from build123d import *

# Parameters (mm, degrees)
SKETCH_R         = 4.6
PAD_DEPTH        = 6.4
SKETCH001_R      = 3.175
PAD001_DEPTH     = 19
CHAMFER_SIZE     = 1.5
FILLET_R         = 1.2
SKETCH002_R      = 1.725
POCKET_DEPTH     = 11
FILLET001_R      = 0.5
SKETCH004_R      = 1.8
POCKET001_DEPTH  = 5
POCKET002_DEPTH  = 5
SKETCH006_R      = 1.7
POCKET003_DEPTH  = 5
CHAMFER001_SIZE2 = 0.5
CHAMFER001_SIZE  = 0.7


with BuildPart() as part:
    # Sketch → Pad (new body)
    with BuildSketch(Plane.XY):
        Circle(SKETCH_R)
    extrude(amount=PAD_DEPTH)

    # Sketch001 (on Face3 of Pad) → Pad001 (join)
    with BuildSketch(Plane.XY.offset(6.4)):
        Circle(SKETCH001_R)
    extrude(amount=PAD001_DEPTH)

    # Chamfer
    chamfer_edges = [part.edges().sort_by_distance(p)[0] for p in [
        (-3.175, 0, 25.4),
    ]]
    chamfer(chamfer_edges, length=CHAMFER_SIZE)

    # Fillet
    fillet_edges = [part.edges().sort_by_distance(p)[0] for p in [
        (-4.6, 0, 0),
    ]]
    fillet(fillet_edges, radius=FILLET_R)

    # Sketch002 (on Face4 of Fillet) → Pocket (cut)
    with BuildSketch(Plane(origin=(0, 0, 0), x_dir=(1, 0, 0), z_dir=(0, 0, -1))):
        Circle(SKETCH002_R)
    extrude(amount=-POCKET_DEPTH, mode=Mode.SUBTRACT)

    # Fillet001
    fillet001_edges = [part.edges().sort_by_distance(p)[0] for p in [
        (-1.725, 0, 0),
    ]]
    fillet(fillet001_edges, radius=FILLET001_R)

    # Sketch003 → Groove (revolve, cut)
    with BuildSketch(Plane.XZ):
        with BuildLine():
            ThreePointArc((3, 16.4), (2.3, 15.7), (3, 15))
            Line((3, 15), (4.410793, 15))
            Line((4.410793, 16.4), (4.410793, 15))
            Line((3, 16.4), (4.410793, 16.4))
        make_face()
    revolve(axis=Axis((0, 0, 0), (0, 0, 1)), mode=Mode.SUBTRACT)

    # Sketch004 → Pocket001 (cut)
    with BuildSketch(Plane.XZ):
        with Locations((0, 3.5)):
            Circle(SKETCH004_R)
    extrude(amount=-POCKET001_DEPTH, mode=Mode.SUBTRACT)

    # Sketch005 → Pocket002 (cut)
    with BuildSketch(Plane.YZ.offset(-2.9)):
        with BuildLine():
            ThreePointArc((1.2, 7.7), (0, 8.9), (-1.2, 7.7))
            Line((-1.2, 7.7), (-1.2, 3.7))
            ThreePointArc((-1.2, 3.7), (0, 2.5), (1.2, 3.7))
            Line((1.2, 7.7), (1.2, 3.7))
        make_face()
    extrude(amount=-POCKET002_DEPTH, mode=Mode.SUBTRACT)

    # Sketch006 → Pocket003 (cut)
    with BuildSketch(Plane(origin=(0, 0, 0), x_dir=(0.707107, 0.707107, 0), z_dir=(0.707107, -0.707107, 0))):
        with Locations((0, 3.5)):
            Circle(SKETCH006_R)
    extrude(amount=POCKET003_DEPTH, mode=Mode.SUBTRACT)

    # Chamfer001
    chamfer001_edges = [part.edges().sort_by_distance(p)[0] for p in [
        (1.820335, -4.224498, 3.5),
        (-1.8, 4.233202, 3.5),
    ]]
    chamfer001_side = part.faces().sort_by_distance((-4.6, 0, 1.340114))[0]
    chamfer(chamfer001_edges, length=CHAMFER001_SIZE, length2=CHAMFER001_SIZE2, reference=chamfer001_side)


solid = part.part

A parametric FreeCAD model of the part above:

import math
import FreeCAD as App
import Part
import Sketcher

V = App.Vector
Q = App.Units.Quantity


def edges_at(feature, points):
    """Names of the edges that pass closest to the given points."""
    edges = feature.Shape.Edges
    near = lambda p: min(range(len(edges)), key=lambda i: edges[i].distToShape(Part.Vertex(*p))[0])
    return sorted({f"Edge{near(p) + 1}" for p in points})

doc = App.newDocument("Part")
body = doc.addObject("PartDesign::Body", "Body")

# Sketch on XY plane
sketch1 = body.newObject("Sketcher::SketchObject", "Sketch")
sketch1.AttachmentSupport = (doc.getObject("XY_Plane"), [""])
sketch1.MapMode = "FlatFace"
sketch1.addGeometry(Part.Circle(V(0, 0, 0), V(0, 0, 1), 4.6), False)
sketch1.addConstraint(Sketcher.Constraint("Coincident", 0, 3, -1, 1))
sketch1.addConstraint(Sketcher.Constraint("Diameter", 0, Q("9.2 mm")))
pad1 = body.newObject("PartDesign::Pad", "Pad")
pad1.Profile = sketch1
pad1.Length = 6.4

# Sketch on XY plane
sketch2 = body.newObject("Sketcher::SketchObject", "Sketch001")
sketch2.AttachmentSupport = (doc.getObject("XY_Plane"), [""])
sketch2.MapMode = "FlatFace"
sketch2.AttachmentOffset = App.Placement(V(0, 0, 6.4), App.Rotation())
sketch2.addGeometry(Part.Circle(V(0, 0, 0), V(0, 0, 1), 3.175), False)
sketch2.addConstraint(Sketcher.Constraint("Coincident", 0, 3, -1, 1))
sketch2.addConstraint(Sketcher.Constraint("Diameter", 0, Q("6.35 mm")))
pad2 = body.newObject("PartDesign::Pad", "Pad001")
pad2.Profile = sketch2
pad2.Length = 19
doc.recompute()

chamfer = body.newObject("PartDesign::Chamfer", "Chamfer")
chamfer.Base = (pad2, edges_at(pad2, [(-3.175, 0, 25.4)]))
chamfer.Size = 1.5
doc.recompute()

fillet = body.newObject("PartDesign::Fillet", "Fillet")
fillet.Base = (chamfer, edges_at(chamfer, [(-4.6, 0, 0)]))
fillet.Radius = 1.2

# Sketch on XY plane
sketch3 = body.newObject("Sketcher::SketchObject", "Sketch002")
sketch3.AttachmentSupport = (doc.getObject("XY_Plane"), [""])
sketch3.MapMode = "FlatFace"
sketch3.addGeometry(Part.Circle(V(0, 0, 0), V(0, 0, 1), 1.725), False)
sketch3.addConstraint(Sketcher.Constraint("Coincident", 0, 3, -1, 1))
sketch3.addConstraint(Sketcher.Constraint("Diameter", 0, Q("3.45 mm")))
pocket1 = body.newObject("PartDesign::Pocket", "Pocket")
pocket1.Profile = sketch3
pocket1.Length = 11
pocket1.Reversed = True
doc.recompute()

fillet2 = body.newObject("PartDesign::Fillet", "Fillet001")
fillet2.Base = (pocket1, edges_at(pocket1, [(-1.725, 0, 0)]))
fillet2.Radius = 0.5

# Sketch on XZ plane
sketch4 = body.newObject("Sketcher::SketchObject", "Sketch003")
sketch4.AttachmentSupport = (doc.getObject("XZ_Plane"), [""])
sketch4.MapMode = "FlatFace"
sketch4.addGeometry(Part.ArcOfCircle(Part.Circle(V(3, 15.7, 0), V(0, 0, 1), 0.7), math.radians(90), math.radians(270)), False)
sketch4.addGeometry(Part.LineSegment(V(3, 15, 0), V(4.410793, 15, 0)), False)
sketch4.addGeometry(Part.LineSegment(V(4.410793, 15, 0), V(4.410793, 16.4, 0)), False)
sketch4.addGeometry(Part.LineSegment(V(4.410793, 16.4, 0), V(3, 16.4, 0)), False)
sketch4.addConstraint(Sketcher.Constraint("Tangent", 0, 2, 1, 1))
sketch4.addConstraint(Sketcher.Constraint("Coincident", 1, 2, 2, 1))
sketch4.addConstraint(Sketcher.Constraint("Coincident", 2, 2, 3, 1))
sketch4.addConstraint(Sketcher.Constraint("Tangent", 3, 2, 0, 1))
sketch4.addConstraint(Sketcher.Constraint("Horizontal", 1))
sketch4.addConstraint(Sketcher.Constraint("Vertical", 2))
sketch4.addConstraint(Sketcher.Constraint("Horizontal", 3))
sketch4.addConstraint(Sketcher.Constraint("Radius", 0, Q("0.7 mm")))
sketch4.addConstraint(Sketcher.Constraint("DistanceX", -1, 1, 0, 3, Q("3 mm")))
sketch4.addConstraint(Sketcher.Constraint("DistanceY", -1, 1, 0, 2, Q("15 mm")))
sketch4.addConstraint(Sketcher.Constraint("DistanceX", 1, 1, 1, 2, Q("1.410793 mm")))
groove = body.newObject("PartDesign::Groove", "Groove")
groove.Profile = sketch4
groove.ReferenceAxis = (sketch4, ["V_Axis"])
groove.Angle = 360

# Sketch on XZ plane
sketch5 = body.newObject("Sketcher::SketchObject", "Sketch004")
sketch5.AttachmentSupport = (doc.getObject("XZ_Plane"), [""])
sketch5.MapMode = "FlatFace"
sketch5.addGeometry(Part.Circle(V(0, 3.5, 0), V(0, 0, 1), 1.8), False)
sketch5.addConstraint(Sketcher.Constraint("PointOnObject", 0, 3, -2))
sketch5.addConstraint(Sketcher.Constraint("Diameter", 0, Q("3.6 mm")))
sketch5.addConstraint(Sketcher.Constraint("DistanceY", -1, 1, 0, 3, Q("3.5 mm")))
pocket2 = body.newObject("PartDesign::Pocket", "Pocket001")
pocket2.Profile = sketch5
pocket2.Length = 5

# Sketch on YZ plane
sketch6 = body.newObject("Sketcher::SketchObject", "Sketch005")
sketch6.AttachmentSupport = (doc.getObject("YZ_Plane"), [""])
sketch6.MapMode = "FlatFace"
sketch6.AttachmentOffset = App.Placement(V(0, 0, -2.9), App.Rotation())
sketch6.addGeometry(Part.ArcOfCircle(Part.Circle(V(0, 7.7, 0), V(0, 0, 1), 1.2), math.radians(0), math.radians(180)), False)
sketch6.addGeometry(Part.LineSegment(V(-1.2, 7.7, 0), V(-1.2, 3.7, 0)), False)
sketch6.addGeometry(Part.ArcOfCircle(Part.Circle(V(0, 3.7, 0), V(0, 0, 1), 1.2), math.radians(180), math.radians(360)), False)
sketch6.addGeometry(Part.LineSegment(V(1.2, 3.7, 0), V(1.2, 7.7, 0)), False)
sketch6.addConstraint(Sketcher.Constraint("Tangent", 0, 2, 1, 1))
sketch6.addConstraint(Sketcher.Constraint("Tangent", 1, 2, 2, 1))
sketch6.addConstraint(Sketcher.Constraint("Tangent", 2, 2, 3, 1))
sketch6.addConstraint(Sketcher.Constraint("Tangent", 3, 2, 0, 1))
sketch6.addConstraint(Sketcher.Constraint("Vertical", 1))
sketch6.addConstraint(Sketcher.Constraint("Vertical", 3))
sketch6.addConstraint(Sketcher.Constraint("PointOnObject", 0, 3, -2))
sketch6.addConstraint(Sketcher.Constraint("Radius", 0, Q("1.2 mm")))
sketch6.addConstraint(Sketcher.Constraint("DistanceY", 1, 2, 1, 1, Q("4 mm")))
sketch6.addConstraint(Sketcher.Constraint("DistanceY", -1, 1, 0, 3, Q("7.7 mm")))
pocket3 = body.newObject("PartDesign::Pocket", "Pocket002")
pocket3.Profile = sketch6
pocket3.Length = 5

# Sketch on an angled plane
sketch7 = body.newObject("Sketcher::SketchObject", "Sketch006")
sketch7.Placement = App.Placement(V(0, 0, 0), App.Rotation(V(0.707106781, 0.707106781, 0), V(0, 0, 0.999999999), V(0.707106781, -0.707106781, 0), "ZXY"))
sketch7.addGeometry(Part.Circle(V(0, 3.5, 0), V(0, 0, 1), 1.7), False)
sketch7.addConstraint(Sketcher.Constraint("PointOnObject", 0, 3, -2))
sketch7.addConstraint(Sketcher.Constraint("Diameter", 0, Q("3.4 mm")))
sketch7.addConstraint(Sketcher.Constraint("DistanceY", -1, 1, 0, 3, Q("3.5 mm")))
pocket4 = body.newObject("PartDesign::Pocket", "Pocket003")
pocket4.Profile = sketch7
pocket4.Length = 5
pocket4.Reversed = True
doc.recompute()

chamfer2 = body.newObject("PartDesign::Chamfer", "Chamfer001")
chamfer2.Base = (pocket4, edges_at(pocket4, [(1.82, -4.224, 3.5), (-1.8, 4.233, 3.5)]))
chamfer2.ChamferType = "Two distances"
chamfer2.Size = 0.7
chamfer2.Size2 = 0.5

doc.recompute()
